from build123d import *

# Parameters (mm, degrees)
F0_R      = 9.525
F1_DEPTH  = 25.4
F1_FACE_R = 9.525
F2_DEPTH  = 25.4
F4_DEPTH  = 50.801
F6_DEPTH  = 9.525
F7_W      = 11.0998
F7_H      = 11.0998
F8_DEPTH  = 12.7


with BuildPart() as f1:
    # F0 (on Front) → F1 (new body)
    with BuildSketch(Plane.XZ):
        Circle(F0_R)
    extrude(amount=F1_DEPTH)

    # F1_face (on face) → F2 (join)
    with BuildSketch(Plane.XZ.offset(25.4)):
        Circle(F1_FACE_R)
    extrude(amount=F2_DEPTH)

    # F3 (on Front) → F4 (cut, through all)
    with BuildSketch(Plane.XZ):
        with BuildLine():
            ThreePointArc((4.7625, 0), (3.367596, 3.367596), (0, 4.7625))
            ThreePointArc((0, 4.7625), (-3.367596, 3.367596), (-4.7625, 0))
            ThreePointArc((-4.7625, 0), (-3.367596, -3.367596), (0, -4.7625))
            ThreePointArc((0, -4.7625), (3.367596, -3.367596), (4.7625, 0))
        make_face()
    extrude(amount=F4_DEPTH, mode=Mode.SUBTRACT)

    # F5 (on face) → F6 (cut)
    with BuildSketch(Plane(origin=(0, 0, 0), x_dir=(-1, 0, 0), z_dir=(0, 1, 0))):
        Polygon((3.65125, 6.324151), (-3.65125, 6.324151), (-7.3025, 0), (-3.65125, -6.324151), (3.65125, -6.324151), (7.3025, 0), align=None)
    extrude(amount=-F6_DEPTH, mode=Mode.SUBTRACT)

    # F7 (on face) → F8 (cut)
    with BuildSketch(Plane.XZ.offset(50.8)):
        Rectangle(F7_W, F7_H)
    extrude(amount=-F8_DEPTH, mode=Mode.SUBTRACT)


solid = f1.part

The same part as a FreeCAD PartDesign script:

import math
import FreeCAD as App
import Part
import Sketcher
from FreeCAD import Vector
Q = App.Units.Quantity


def add_polygon(sketch, points):
    """Adds a closed chain of lines whose ends are joined by coincident constraints."""
    first, n = sketch.GeometryCount, len(points)
    for a, b in zip(points, points[1:] + points[:1]):
        sketch.addGeometry(Part.LineSegment(App.Vector(*a, 0), App.Vector(*b, 0)), False)
    for i in range(n):
        sketch.addConstraint(Sketcher.Constraint("Coincident", first + i, 2, first + (i + 1) % n, 1))

doc = App.newDocument("Part")
body = doc.addObject("PartDesign::Body", "Body")

# Sketch on XZ plane
sketch1 = body.newObject("Sketcher::SketchObject", "Sketch")
sketch1.AttachmentSupport = (doc.getObject("XZ_Plane"), [""])
sketch1.MapMode = "FlatFace"
sketch1.addGeometry(Part.Circle(Vector(0, 0, 0), Vector(0, 0, 1), 10), False)
sketch1.addConstraint([
    Sketcher.Constraint("Coincident", 0, 3, -1, 1),
    Sketcher.Constraint("Diameter", 0, Q("0.75 in")),
])
pad1 = body.newObject("PartDesign::Pad", "Pad")
pad1.Profile = sketch1
pad1.Length = Q("1 in")

# Sketch on XZ plane
sketch2 = body.newObject("Sketcher::SketchObject", "Sketch001")
sketch2.AttachmentSupport = (doc.getObject("XZ_Plane"), [""])
sketch2.MapMode = "FlatFace"
sketch2.AttachmentOffset = App.Placement(Vector(0, 0, 1 * 25.4), App.Rotation())
sketch2.addGeometry(Part.Circle(Vector(0, 0, 0), Vector(0, 0, 1), 10), False)
sketch2.addConstraint([
    Sketcher.Constraint("Coincident", 0, 3, -1, 1),
    Sketcher.Constraint("Diameter", 0, Q("0.75 in")),
])
pad2 = body.newObject("PartDesign::Pad", "Pad001")
pad2.Profile = sketch2
pad2.Length = Q("1 in")

# Sketch on XZ plane
sketch3 = body.newObject("Sketcher::SketchObject", "Sketch002")
sketch3.AttachmentSupport = (doc.getObject("XZ_Plane"), [""])
sketch3.MapMode = "FlatFace"
sketch3.addGeometry([
    Part.ArcOfCircle(Part.Circle(Vector(0, 0, 0), Vector(0, 0, 1), 4.8), math.radians(0), math.radians(90)),
    Part.ArcOfCircle(Part.Circle(Vector(0, 0, 0), Vector(0, 0, 1), 4.8), math.radians(90), math.radians(180)),
    Part.ArcOfCircle(Part.Circle(Vector(0, 0, 0), Vector(0, 0, 1), 4.8), math.radians(-180), math.radians(-90)),
    Part.ArcOfCircle(Part.Circle(Vector(0, 0, 0), Vector(0, 0, 1), 4.8), math.radians(-90), math.radians(0)),
], False)
sketch3.addConstraint([
    Sketcher.Constraint("Tangent", 0, 2, 1, 1),
    Sketcher.Constraint("Tangent", 1, 2, 2, 1),
    Sketcher.Constraint("Tangent", 2, 2, 3, 1),
    Sketcher.Constraint("Tangent", 3, 2, 0, 1),
    Sketcher.Constraint("Coincident", 0, 3, -1, 1),
    Sketcher.Constraint("Equal", 0, 1),
    Sketcher.Constraint("PointOnObject", 0, 2, -2),
    Sketcher.Constraint("PointOnObject", 1, 2, -1),
    Sketcher.Constraint("PointOnObject", 2, 2, -2),
    Sketcher.Constraint("PointOnObject", 3, 2, -1),
    Sketcher.Constraint("Radius", 0, Q("0.1875 in")),
])
pocket1 = body.newObject("PartDesign::Pocket", "Pocket")
pocket1.Profile = sketch3
pocket1.Type = "ThroughAll"
pocket1.Reversed = True

# Sketch on XZ plane
sketch4 = body.newObject("Sketcher::SketchObject", "Sketch003")
sketch4.AttachmentSupport = (doc.getObject("XZ_Plane"), [""])
sketch4.MapMode = "FlatFace"
add_polygon(sketch4, [(-4, 6), (4, 6), (7, 0), (4, -6), (-4, -6), (-7, 0)])  # lines 0-5
sketch4.addConstraint([
    Sketcher.Constraint("Horizontal", 0),
    Sketcher.Constraint("Horizontal", 3),
    Sketcher.Constraint("Symmetric", 0, 2, 3, 2, -1, 1),
    Sketcher.Constraint("Symmetric", 1, 2, 4, 2, -1, 1),
    Sketcher.Constraint("PointOnObject", 1, 2, -1),
    Sketcher.Constraint("Parallel", 2, 5),
    Sketcher.Constraint("Vertical", 0, 2, 2, 2),
    Sketcher.Constraint("Angle", 1, Q("-60.000002 deg")),
    Sketcher.Constraint("DistanceX", 0, 1, 0, 2, Q("0.2875 in")),
    Sketcher.Constraint("DistanceX", 4, 2, 1, 2, Q("0.575 in")),
])
pocket2 = body.newObject("PartDesign::Pocket", "Pocket001")
pocket2.Profile = sketch4
pocket2.Length = Q("0.375 in")
pocket2.Reversed = True

# Sketch on XZ plane
sketch5 = body.newObject("Sketcher::SketchObject", "Sketch004")
sketch5.AttachmentSupport = (doc.getObject("XZ_Plane"), [""])
sketch5.MapMode = "FlatFace"
sketch5.AttachmentOffset = App.Placement(Vector(0, 0, 2 * 25.4), App.Rotation())
add_polygon(sketch5, [(-6, 6), (-6, -6), (6, -6), (6, 6)])  # lines 0-3
sketch5.addConstraint([
    Sketcher.Constraint("Vertical", 0),
    Sketcher.Constraint("Horizontal", 1),
    Sketcher.Constraint("Vertical", 2),
    Sketcher.Constraint("Horizontal", 3),
    Sketcher.Constraint("Symmetric", 0, 2, 2, 2, -1, 1),
    Sketcher.Constraint("Equal", 3, 0),
    Sketcher.Constraint("DistanceX", 1, 1, 1, 2, Q("0.437 in")),
])
pocket3 = body.newObject("PartDesign::Pocket", "Pocket002")
pocket3.Profile = sketch5
pocket3.Length = Q("0.5 in")

doc.recompute()
